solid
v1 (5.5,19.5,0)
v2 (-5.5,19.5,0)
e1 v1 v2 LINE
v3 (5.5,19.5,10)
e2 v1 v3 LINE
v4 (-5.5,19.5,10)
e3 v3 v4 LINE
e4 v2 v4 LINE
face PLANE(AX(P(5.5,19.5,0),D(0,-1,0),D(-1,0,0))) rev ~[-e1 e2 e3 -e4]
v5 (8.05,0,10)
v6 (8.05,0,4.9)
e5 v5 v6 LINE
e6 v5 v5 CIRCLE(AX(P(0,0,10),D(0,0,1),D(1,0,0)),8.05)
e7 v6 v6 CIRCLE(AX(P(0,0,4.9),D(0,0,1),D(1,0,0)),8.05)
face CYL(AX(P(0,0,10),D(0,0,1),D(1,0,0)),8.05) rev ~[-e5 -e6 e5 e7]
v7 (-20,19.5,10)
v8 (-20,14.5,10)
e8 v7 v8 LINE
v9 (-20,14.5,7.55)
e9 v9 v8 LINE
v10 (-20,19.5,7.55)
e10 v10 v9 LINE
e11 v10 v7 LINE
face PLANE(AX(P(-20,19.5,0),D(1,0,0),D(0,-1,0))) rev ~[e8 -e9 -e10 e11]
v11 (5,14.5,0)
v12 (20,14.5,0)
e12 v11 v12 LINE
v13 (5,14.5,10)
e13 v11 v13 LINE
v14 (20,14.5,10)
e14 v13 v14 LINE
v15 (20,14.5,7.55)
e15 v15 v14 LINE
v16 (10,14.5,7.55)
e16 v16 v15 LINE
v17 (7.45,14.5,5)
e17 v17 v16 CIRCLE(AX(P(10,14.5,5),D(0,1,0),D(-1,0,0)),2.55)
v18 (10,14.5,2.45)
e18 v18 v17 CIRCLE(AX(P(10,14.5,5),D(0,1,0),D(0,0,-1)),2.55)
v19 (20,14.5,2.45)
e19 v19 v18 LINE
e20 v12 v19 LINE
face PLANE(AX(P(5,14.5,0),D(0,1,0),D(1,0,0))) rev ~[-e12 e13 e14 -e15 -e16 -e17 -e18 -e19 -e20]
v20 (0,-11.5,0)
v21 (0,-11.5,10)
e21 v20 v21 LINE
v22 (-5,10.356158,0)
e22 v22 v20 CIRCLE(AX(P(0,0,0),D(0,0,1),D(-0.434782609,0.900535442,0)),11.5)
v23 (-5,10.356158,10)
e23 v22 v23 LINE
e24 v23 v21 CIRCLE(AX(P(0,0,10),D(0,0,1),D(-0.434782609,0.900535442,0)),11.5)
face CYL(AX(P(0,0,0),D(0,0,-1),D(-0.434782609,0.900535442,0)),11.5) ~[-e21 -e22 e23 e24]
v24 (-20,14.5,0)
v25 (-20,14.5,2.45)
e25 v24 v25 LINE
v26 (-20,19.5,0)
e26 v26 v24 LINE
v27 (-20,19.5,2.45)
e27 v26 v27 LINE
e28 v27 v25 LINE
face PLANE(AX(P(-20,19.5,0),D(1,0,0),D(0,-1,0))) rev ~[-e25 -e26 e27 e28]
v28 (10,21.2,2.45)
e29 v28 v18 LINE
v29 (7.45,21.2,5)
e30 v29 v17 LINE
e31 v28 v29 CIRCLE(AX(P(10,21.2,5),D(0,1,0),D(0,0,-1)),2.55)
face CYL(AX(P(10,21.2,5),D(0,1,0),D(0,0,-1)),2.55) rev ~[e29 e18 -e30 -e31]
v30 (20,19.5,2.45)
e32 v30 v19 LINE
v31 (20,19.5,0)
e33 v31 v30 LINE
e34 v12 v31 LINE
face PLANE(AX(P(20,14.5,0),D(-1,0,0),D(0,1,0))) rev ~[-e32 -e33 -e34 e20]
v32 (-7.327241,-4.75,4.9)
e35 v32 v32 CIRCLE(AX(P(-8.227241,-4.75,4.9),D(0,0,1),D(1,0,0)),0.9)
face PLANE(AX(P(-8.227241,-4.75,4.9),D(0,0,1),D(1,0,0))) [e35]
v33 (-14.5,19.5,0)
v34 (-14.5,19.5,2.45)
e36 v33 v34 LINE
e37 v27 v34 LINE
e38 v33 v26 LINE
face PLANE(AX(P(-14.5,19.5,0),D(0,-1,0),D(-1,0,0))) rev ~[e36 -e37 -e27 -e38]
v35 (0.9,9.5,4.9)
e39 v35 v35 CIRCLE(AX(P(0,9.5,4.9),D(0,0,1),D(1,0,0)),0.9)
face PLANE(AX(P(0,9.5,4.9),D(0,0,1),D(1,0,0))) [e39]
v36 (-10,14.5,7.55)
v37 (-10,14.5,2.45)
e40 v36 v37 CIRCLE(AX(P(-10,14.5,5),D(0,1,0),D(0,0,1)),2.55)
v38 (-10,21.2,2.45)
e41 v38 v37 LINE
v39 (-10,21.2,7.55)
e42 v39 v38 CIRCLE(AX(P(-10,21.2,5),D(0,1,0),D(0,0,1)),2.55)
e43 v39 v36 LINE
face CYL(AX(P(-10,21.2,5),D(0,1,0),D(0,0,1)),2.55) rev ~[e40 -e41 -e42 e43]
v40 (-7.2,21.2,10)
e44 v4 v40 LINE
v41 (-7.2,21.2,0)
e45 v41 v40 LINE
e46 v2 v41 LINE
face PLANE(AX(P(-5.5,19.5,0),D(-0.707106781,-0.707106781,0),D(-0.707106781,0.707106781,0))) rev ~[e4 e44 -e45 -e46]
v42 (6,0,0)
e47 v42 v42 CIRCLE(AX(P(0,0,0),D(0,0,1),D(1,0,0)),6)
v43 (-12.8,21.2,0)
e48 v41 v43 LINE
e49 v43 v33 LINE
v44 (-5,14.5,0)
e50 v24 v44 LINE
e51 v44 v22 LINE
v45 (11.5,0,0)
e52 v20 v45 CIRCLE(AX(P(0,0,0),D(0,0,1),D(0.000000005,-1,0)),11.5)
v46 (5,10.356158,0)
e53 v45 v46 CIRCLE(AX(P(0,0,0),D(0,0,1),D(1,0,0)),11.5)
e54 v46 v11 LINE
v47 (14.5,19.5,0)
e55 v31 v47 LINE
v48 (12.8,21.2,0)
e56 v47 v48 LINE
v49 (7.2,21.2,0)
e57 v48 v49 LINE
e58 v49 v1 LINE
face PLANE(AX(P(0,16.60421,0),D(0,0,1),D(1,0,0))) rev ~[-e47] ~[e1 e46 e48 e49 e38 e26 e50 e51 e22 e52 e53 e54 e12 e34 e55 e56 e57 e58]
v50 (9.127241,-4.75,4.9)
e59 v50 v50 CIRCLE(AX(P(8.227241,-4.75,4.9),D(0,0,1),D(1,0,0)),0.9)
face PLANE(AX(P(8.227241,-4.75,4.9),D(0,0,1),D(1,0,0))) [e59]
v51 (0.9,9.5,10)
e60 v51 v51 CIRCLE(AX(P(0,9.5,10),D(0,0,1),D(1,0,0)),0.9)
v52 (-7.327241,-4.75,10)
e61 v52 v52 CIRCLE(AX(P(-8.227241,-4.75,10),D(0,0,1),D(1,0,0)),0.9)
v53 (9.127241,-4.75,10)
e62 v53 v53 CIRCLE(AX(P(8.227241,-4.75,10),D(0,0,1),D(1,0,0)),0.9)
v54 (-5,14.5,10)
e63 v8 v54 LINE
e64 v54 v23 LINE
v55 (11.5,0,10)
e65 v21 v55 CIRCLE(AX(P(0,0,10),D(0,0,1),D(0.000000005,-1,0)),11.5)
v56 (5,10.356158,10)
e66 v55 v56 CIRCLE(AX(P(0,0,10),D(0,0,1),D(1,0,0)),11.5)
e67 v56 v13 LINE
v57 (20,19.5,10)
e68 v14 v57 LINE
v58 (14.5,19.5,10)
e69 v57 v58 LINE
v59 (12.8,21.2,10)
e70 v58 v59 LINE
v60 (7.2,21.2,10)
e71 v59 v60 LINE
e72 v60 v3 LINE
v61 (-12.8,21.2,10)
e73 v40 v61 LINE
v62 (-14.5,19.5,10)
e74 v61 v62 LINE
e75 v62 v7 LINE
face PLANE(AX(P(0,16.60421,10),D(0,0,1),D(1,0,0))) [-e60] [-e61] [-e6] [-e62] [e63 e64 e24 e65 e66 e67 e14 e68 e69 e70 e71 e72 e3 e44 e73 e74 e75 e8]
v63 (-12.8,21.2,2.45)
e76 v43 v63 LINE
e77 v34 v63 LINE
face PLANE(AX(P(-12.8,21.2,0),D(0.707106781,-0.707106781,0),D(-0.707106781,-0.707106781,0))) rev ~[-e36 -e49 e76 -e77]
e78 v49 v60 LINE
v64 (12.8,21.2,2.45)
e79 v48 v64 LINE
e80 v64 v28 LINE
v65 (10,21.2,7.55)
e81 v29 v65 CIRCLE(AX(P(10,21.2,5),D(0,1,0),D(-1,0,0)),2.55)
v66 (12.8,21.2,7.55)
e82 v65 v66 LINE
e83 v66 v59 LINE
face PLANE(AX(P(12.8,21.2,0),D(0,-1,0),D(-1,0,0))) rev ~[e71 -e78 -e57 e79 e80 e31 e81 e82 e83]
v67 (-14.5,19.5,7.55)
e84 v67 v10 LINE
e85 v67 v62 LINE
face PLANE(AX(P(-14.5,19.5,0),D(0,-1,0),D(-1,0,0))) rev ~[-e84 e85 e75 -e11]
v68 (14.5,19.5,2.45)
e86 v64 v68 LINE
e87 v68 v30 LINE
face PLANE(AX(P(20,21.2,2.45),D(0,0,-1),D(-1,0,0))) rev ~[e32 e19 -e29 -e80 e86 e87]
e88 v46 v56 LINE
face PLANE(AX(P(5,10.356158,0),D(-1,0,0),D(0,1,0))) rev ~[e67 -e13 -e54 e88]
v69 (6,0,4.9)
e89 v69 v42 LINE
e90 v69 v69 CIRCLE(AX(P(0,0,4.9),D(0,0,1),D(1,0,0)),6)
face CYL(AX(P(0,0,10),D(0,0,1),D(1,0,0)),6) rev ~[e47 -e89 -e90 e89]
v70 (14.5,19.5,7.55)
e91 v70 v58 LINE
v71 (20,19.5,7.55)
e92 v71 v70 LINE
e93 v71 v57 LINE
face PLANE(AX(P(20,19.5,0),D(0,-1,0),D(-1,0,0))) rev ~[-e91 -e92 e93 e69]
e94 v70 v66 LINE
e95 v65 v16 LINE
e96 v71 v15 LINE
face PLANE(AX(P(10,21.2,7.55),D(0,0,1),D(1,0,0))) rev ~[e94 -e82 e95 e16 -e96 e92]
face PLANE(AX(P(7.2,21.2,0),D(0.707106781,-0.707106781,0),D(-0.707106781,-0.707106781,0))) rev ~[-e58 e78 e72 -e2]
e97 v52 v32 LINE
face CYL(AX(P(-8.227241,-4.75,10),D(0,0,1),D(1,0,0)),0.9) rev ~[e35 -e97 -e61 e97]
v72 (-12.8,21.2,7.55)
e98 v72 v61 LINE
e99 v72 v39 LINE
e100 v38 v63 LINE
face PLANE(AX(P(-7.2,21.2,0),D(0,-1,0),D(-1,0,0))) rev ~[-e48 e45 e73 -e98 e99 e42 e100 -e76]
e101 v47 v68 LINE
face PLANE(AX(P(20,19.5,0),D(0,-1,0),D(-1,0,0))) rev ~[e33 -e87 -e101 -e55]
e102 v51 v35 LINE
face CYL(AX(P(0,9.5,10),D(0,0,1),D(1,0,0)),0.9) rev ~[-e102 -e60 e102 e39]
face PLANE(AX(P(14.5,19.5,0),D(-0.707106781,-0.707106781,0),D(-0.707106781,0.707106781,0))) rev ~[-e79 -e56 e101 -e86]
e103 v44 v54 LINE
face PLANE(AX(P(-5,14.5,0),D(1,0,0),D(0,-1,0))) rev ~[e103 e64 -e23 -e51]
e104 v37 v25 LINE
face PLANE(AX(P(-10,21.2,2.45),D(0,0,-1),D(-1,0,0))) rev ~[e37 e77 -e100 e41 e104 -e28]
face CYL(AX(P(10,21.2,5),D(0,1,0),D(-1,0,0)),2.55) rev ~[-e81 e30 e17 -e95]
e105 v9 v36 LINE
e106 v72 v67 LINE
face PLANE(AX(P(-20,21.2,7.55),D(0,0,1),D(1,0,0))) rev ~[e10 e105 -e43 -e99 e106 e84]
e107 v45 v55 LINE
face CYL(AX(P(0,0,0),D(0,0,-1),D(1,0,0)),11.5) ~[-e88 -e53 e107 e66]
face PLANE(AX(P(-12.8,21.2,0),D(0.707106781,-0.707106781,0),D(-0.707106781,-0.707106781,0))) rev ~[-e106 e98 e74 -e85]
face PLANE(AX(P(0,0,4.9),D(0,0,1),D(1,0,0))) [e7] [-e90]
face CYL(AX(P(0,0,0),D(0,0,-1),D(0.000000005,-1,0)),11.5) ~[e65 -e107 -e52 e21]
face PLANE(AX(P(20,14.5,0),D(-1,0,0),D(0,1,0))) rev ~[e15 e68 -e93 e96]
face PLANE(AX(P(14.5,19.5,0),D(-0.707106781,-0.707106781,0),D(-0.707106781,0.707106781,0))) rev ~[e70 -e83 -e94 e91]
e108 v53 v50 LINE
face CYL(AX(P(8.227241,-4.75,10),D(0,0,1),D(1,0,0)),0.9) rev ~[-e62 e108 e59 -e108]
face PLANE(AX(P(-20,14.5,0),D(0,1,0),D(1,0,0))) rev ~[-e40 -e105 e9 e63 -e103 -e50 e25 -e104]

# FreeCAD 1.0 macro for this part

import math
import FreeCAD as App
import Part
import Sketcher

V = App.Vector
Q = App.Units.Quantity

doc = App.newDocument("Part")
body = doc.addObject("PartDesign::Body", "Body")

sketch1 = body.newObject("Sketcher::SketchObject", "Sketch")
sketch1.AttachmentSupport = (doc.getObject("XY_Plane"), [""])
sketch1.MapMode = "FlatFace"
sketch1.addGeometry(Part.LineSegment(V(-5, 14.5, 0), V(-5, 10.4, 0)), False)
sketch1.addGeometry(Part.ArcOfCircle(Part.Circle(V(0, 0, 0), V(0, 0, 1), 11.5), math.radians(116), math.radians(270)), False)
sketch1.addGeometry(Part.ArcOfCircle(Part.Circle(V(0, 0, 0), V(0, 0, 1), 11.5), math.radians(-90), math.radians(0)), False)
sketch1.addGeometry(Part.ArcOfCircle(Part.Circle(V(0, 0, 0), V(0, 0, 1), 11.5), math.radians(0), math.radians(64)), False)
sketch1.addGeometry(Part.LineSegment(V(5, 10.4, 0), V(5, 14.5, 0)), False)
sketch1.addGeometry(Part.LineSegment(V(5, 14.5, 0), V(20, 14.5, 0)), False)
sketch1.addGeometry(Part.LineSegment(V(20, 14.5, 0), V(20, 19.5, 0)), False)
sketch1.addGeometry(Part.LineSegment(V(20, 19.5, 0), V(14.5, 19.5, 0)), False)
sketch1.addGeometry(Part.LineSegment(V(14.5, 19.5, 0), V(12.8, 21.2, 0)), False)
sketch1.addGeometry(Part.LineSegment(V(12.8, 21.2, 0), V(7.2, 21.2, 0)), False)
sketch1.addGeometry(Part.LineSegment(V(7.2, 21.2, 0), V(5.5, 19.5, 0)), False)
sketch1.addGeometry(Part.LineSegment(V(5.5, 19.5, 0), V(-5.5, 19.5, 0)), False)
sketch1.addGeometry(Part.LineSegment(V(-5.5, 19.5, 0), V(-7.2, 21.2, 0)), False)
sketch1.addGeometry(Part.LineSegment(V(-7.2, 21.2, 0), V(-12.8, 21.2, 0)), False)
sketch1.addGeometry(Part.LineSegment(V(-12.8, 21.2, 0), V(-14.5, 19.5, 0)), False)
sketch1.addGeometry(Part.LineSegment(V(-14.5, 19.5, 0), V(-20, 19.5, 0)), False)
sketch1.addGeometry(Part.LineSegment(V(-20, 19.5, 0), V(-20, 14.5, 0)), False)
sketch1.addGeometry(Part.LineSegment(V(-20, 14.5, 0), V(-5, 14.5, 0)), False)
sketch1.addConstraint(Sketcher.Constraint("Coincident", 0, 2, 1, 1))
sketch1.addConstraint(Sketcher.Constraint("Tangent", 1, 2, 2, 1))
sketch1.addConstraint(Sketcher.Constraint("Tangent", 2, 2, 3, 1))
sketch1.addConstraint(Sketcher.Constraint("Coincident", 3, 2, 4, 1))
sketch1.addConstraint(Sketcher.Constraint("Coincident", 4, 2, 5, 1))
sketch1.addConstraint(Sketcher.Constraint("Coincident", 5, 2, 6, 1))
sketch1.addConstraint(Sketcher.Constraint("Coincident", 6, 2, 7, 1))
sketch1.addConstraint(Sketcher.Constraint("Coincident", 7, 2, 8, 1))
sketch1.addConstraint(Sketcher.Constraint("Coincident", 8, 2, 9, 1))
sketch1.addConstraint(Sketcher.Constraint("Coincident", 9, 2, 10, 1))
sketch1.addConstraint(Sketcher.Constraint("Coincident", 10, 2, 11, 1))
sketch1.addConstraint(Sketcher.Constraint("Coincident", 11, 2, 12, 1))
sketch1.addConstraint(Sketcher.Constraint("Coincident", 12, 2, 13, 1))
sketch1.addConstraint(Sketcher.Constraint("Coincident", 13, 2, 14, 1))
sketch1.addConstraint(Sketcher.Constraint("Coincident", 14, 2, 15, 1))
sketch1.addConstraint(Sketcher.Constraint("Coincident", 15, 2, 16, 1))
sketch1.addConstraint(Sketcher.Constraint("Coincident", 16, 2, 17, 1))
sketch1.addConstraint(Sketcher.Constraint("Coincident", 17, 2, 0, 1))
sketch1.addConstraint(Sketcher.Constraint("Vertical", 0))
sketch1.addConstraint(Sketcher.Constraint("Vertical", 4))
sketch1.addConstraint(Sketcher.Constraint("Horizontal", 5))
sketch1.addConstraint(Sketcher.Constraint("Vertical", 6))
sketch1.addConstraint(Sketcher.Constraint("Horizontal", 7))
sketch1.addConstraint(Sketcher.Constraint("Horizontal", 9))
sketch1.addConstraint(Sketcher.Constraint("Horizontal", 11))
sketch1.addConstraint(Sketcher.Constraint("Horizontal", 13))
sketch1.addConstraint(Sketcher.Constraint("Horizontal", 15))
sketch1.addConstraint(Sketcher.Constraint("Vertical", 16))
sketch1.addConstraint(Sketcher.Constraint("Horizontal", 17))
sketch1.addConstraint(Sketcher.Constraint("Coincident", 1, 3, -1, 1))
sketch1.addConstraint(Sketcher.Constraint("Coincident", 3, 3, -1, 1))
sketch1.addConstraint(Sketcher.Constraint("Symmetric", 9, 2, 12, 2, -2))
sketch1.addConstraint(Sketcher.Constraint("Symmetric", 7, 2, 14, 2, -2))
sketch1.addConstraint(Sketcher.Constraint("Symmetric", 5, 2, 16, 2, -2))
sketch1.addConstraint(Sketcher.Constraint("PointOnObject", 1, 2, -2))
sketch1.addConstraint(Sketcher.Constraint("PointOnObject", 2, 2, -1))
sketch1.addConstraint(Sketcher.Constraint("Perpendicular", 8, 10))
sketch1.addConstraint(Sketcher.Constraint("Perpendicular", 10, 12))
sketch1.addConstraint(Sketcher.Constraint("Perpendicular", 12, 14))
sketch1.addConstraint(Sketcher.Constraint("Horizontal", 0, 2, 3, 2))
sketch1.addConstraint(Sketcher.Constraint("Horizontal", 7, 2, 10, 2))
sketch1.addConstraint(Sketcher.Constraint("Equal", 9, 13))
sketch1.addConstraint(Sketcher.Constraint("Radius", 1, Q("11.5 mm")))
sketch1.addConstraint(Sketcher.Constraint("DistanceX", 5, 1, 5, 2, Q("15 mm")))
sketch1.addConstraint(Sketcher.Constraint("DistanceX", 11, 2, 11, 1, Q("11 mm")))
sketch1.addConstraint(Sketcher.Constraint("DistanceY", 6, 1, 6, 2, Q("5 mm")))
sketch1.addConstraint(Sketcher.Constraint("DistanceX", 7, 2, 7, 1, Q("5.5 mm")))
sketch1.addConstraint(Sketcher.Constraint("DistanceX", 9, 2, 9, 1, Q("5.6 mm")))
sketch1.addConstraint(Sketcher.Constraint("DistanceX", 0, 2, -1, 1, Q("5 mm")))
sketch1.addConstraint(Sketcher.Constraint("DistanceY", -1, 1, 4, 2, Q("14.5 mm")))
pad1 = body.newObject("PartDesign::Pad", "Pad")
pad1.Profile = sketch1
pad1.Length = 10

sketch2 = body.newObject("Sketcher::SketchObject", "Sketch001")
sketch2.AttachmentSupport = (doc.getObject("XY_Plane"), [""])
sketch2.MapMode = "FlatFace"
sketch2.AttachmentOffset = App.Placement(V(0, 0, 10), App.Rotation())
sketch2.addGeometry(Part.Circle(V(0, 0, 0), V(0, 0, 1), 6), False)
sketch2.addConstraint(Sketcher.Constraint("Coincident", 0, 3, -1, 1))
sketch2.addConstraint(Sketcher.Constraint("Diameter", 0, Q("12 mm")))
pocket1 = body.newObject("PartDesign::Pocket", "Pocket")
pocket1.Profile = sketch2
pocket1.Type = "ThroughAll"

sketch3 = body.newObject("Sketcher::SketchObject", "Sketch002")
sketch3.AttachmentSupport = (doc.getObject("XY_Plane"), [""])
sketch3.MapMode = "FlatFace"
sketch3.AttachmentOffset = App.Placement(V(0, 0, 10), App.Rotation())
sketch3.addGeometry(Part.Circle(V(0, 0, 0), V(0, 0, 1), 8.1), False)
sketch3.addGeometry(Part.Circle(V(0, 0, 0), V(0, 0, 1), 6), False)
sketch3.addGeometry(Part.Circle(V(-8.2, -4.8, 0), V(0, 0, 1), 0.9), False)
sketch3.addGeometry(Part.Circle(V(0, 9.5, 0), V(0, 0, 1), 0.9), False)
sketch3.addGeometry(Part.Circle(V(8.2, -4.8, 0), V(0, 0, 1), 0.9), False)
sketch3.addConstraint(Sketcher.Constraint("Coincident", 0, 3, -1, 1))
sketch3.addConstraint(Sketcher.Constraint("Coincident", 1, 3, -1, 1))
sketch3.addConstraint(Sketcher.Constraint("Equal", 2, 3))
sketch3.addConstraint(Sketcher.Constraint("Equal", 3, 4))
sketch3.addConstraint(Sketcher.Constraint("Symmetric", 2, 3, 4, 3, -2))
sketch3.addConstraint(Sketcher.Constraint("PointOnObject", 3, 3, -2))
sketch3.addConstraint(Sketcher.Constraint("Diameter", 1, Q("12 mm")))
sketch3.addConstraint(Sketcher.Constraint("Diameter", 0, Q("16.1 mm")))
sketch3.addConstraint(Sketcher.Constraint("Diameter", 2, Q("1.8 mm")))
sketch3.addConstraint(Sketcher.Constraint("DistanceY", -1, 1, 3, 3, Q("9.5 mm")))
sketch3.addConstraint(Sketcher.Constraint("DistanceY", 2, 3, -1, 1, Q("4.75 mm")))
sketch3.addConstraint(Sketcher.Constraint("DistanceX", 2, 3, -1, 1, Q("8.227241 mm")))
pocket2 = body.newObject("PartDesign::Pocket", "Pocket001")
pocket2.Profile = sketch3
pocket2.Length = 5.1

sketch4 = body.newObject("Sketcher::SketchObject", "Sketch003")
sketch4.AttachmentSupport = (doc.getObject("XZ_Plane"), [""])
sketch4.MapMode = "FlatFace"
sketch4.AttachmentOffset = App.Placement(V(0, 0, -21.2), App.Rotation())
sketch4.addGeometry(Part.ArcOfCircle(Part.Circle(V(-10, 5, 0), V(0, 0, 1), 2.5), math.radians(-90), math.radians(90)), False)
sketch4.addGeometry(Part.LineSegment(V(-10, 2.5, 0), V(-20, 2.5, 0)), False)
sketch4.addGeometry(Part.LineSegment(V(-20, 2.5, 0), V(-20, 7.5, 0)), False)
sketch4.addGeometry(Part.LineSegment(V(-20, 7.5, 0), V(-10, 7.5, 0)), False)
sketch4.addGeometry(Part.LineSegment(V(10, 7.5, 0), V(20, 7.5, 0)), False)
sketch4.addGeometry(Part.LineSegment(V(20, 7.5, 0), V(20, 2.5, 0)), False)
sketch4.addGeometry(Part.LineSegment(V(20, 2.5, 0), V(10, 2.5, 0)), False)
sketch4.addGeometry(Part.ArcOfCircle(Part.Circle(V(10, 5, 0), V(0, 0, 1), 2.5), math.radians(180), math.radians(270)), False)
sketch4.addGeometry(Part.ArcOfCircle(Part.Circle(V(10, 5, 0), V(0, 0, 1), 2.5), math.radians(90), math.radians(180)), False)
sketch4.addConstraint(Sketcher.Constraint("Tangent", 0, 1, 1, 1))
sketch4.addConstraint(Sketcher.Constraint("Coincident", 1, 2, 2, 1))
sketch4.addConstraint(Sketcher.Constraint("Coincident", 2, 2, 3, 1))
sketch4.addConstraint(Sketcher.Constraint("Tangent", 3, 2, 0, 2))
sketch4.addConstraint(Sketcher.Constraint("Coincident", 4, 2, 5, 1))
sketch4.addConstraint(Sketcher.Constraint("Coincident", 5, 2, 6, 1))
sketch4.addConstraint(Sketcher.Constraint("Tangent", 6, 2, 7, 2))
sketch4.addConstraint(Sketcher.Constraint("Tangent", 7, 1, 8, 2))
sketch4.addConstraint(Sketcher.Constraint("Tangent", 8, 1, 4, 1))
sketch4.addConstraint(Sketcher.Constraint("Horizontal", 1))
sketch4.addConstraint(Sketcher.Constraint("Vertical", 2))
sketch4.addConstraint(Sketcher.Constraint("Horizontal", 3))
sketch4.addConstraint(Sketcher.Constraint("Horizontal", 4))
sketch4.addConstraint(Sketcher.Constraint("Vertical", 5))
sketch4.addConstraint(Sketcher.Constraint("Horizontal", 6))
sketch4.addConstraint(Sketcher.Constraint("Equal", 0, 7))
sketch4.addConstraint(Sketcher.Constraint("Equal", 7, 8))
sketch4.addConstraint(Sketcher.Constraint("Symmetric", 0, 3, 7, 3, -2))
sketch4.addConstraint(Sketcher.Constraint("Horizontal", 8, 3, 7, 1))
sketch4.addConstraint(Sketcher.Constraint("Equal", 3, 4))
sketch4.addConstraint(Sketcher.Constraint("DistanceX", 1, 2, 1, 1, Q("10 mm")))
sketch4.addConstraint(Sketcher.Constraint("Radius", 0, Q("2.55 mm")))
sketch4.addConstraint(Sketcher.Constraint("DistanceX", 0, 3, -1, 1, Q("10 mm")))
sketch4.addConstraint(Sketcher.Constraint("DistanceY", -1, 1, 0, 3, Q("5 mm")))
pocket3 = body.newObject("PartDesign::Pocket", "Pocket002")
pocket3.Profile = sketch4
pocket3.Length = 6.7
pocket3.Reversed = True

doc.recompute()
